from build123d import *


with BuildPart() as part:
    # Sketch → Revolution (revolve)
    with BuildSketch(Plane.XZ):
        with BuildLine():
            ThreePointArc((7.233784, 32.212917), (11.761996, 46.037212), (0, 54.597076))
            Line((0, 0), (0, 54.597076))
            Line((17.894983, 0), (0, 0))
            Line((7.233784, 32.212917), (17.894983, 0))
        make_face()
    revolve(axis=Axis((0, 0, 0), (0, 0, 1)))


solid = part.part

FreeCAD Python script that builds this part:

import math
import FreeCAD as App
import Part
import Sketcher
from FreeCAD import Vector
Q = App.Units.Quantity

doc = App.newDocument("Part")
params = doc.addObject("Spreadsheet::Sheet", "Params")
for row, (alias, value) in enumerate([
    ("revolution_angle", "360 deg"),
], start=1):
    params.set(f"A{row}", alias)
    params.set(f"B{row}", "=" + value)
    params.setAlias(f"B{row}", alias)

body = doc.addObject("PartDesign::Body", "Body")

sketch1 = body.newObject("Sketcher::SketchObject", "Sketch")
sketch1.AttachmentSupport = (doc.getObject("XZ_Plane"), [""])
sketch1.MapMode = "FlatFace"
sketch1.addGeometry(Part.ArcOfCircle(Part.Circle(Vector(0, 42, 0), Vector(0, 0, 1), 12), math.radians(-54), math.radians(90)), False)
sketch1.addGeometry(Part.LineSegment(Vector(0, 55, 0), Vector(0, 0, 0)), False)
sketch1.addGeometry(Part.LineSegment(Vector(0, 0, 0), Vector(18, 0, 0)), False)
sketch1.addGeometry(Part.LineSegment(Vector(18, 0, 0), Vector(7, 32, 0)), False)
sketch1.addConstraint(Sketcher.Constraint("Coincident", 0, 2, 1, 1))
sketch1.addConstraint(Sketcher.Constraint("Coincident", 1, 2, 2, 1))
sketch1.addConstraint(Sketcher.Constraint("Coincident", 2, 2, 3, 1))
sketch1.addConstraint(Sketcher.Constraint("Coincident", 3, 2, 0, 1))
sketch1.addConstraint(Sketcher.Constraint("Vertical", 1))
sketch1.addConstraint(Sketcher.Constraint("Horizontal", 2))
sketch1.addConstraint(Sketcher.Constraint("Coincident", 1, 2, -1, 1))
sketch1.addConstraint(Sketcher.Constraint("PointOnObject", 0, 3, -2))
sketch1.addConstraint(Sketcher.Constraint("Radius", 0, Q("12.360934 mm")))
sketch1.addConstraint(Sketcher.Constraint("Distance", 3, Q("33.931301 mm")))
sketch1.addConstraint(Sketcher.Constraint("DistanceX", 3, 2, 2, 2, Q("10.661199 mm")))
sketch1.addConstraint(Sketcher.Constraint("DistanceX", 2, 1, 2, 2, Q("17.894983 mm")))
revolution = body.newObject("PartDesign::Revolution", "Revolution")
revolution.Profile = sketch1
revolution.ReferenceAxis = (sketch1, ["V_Axis"])
revolution.setExpression("Angle", "Params.revolution_angle")

doc.recompute()
